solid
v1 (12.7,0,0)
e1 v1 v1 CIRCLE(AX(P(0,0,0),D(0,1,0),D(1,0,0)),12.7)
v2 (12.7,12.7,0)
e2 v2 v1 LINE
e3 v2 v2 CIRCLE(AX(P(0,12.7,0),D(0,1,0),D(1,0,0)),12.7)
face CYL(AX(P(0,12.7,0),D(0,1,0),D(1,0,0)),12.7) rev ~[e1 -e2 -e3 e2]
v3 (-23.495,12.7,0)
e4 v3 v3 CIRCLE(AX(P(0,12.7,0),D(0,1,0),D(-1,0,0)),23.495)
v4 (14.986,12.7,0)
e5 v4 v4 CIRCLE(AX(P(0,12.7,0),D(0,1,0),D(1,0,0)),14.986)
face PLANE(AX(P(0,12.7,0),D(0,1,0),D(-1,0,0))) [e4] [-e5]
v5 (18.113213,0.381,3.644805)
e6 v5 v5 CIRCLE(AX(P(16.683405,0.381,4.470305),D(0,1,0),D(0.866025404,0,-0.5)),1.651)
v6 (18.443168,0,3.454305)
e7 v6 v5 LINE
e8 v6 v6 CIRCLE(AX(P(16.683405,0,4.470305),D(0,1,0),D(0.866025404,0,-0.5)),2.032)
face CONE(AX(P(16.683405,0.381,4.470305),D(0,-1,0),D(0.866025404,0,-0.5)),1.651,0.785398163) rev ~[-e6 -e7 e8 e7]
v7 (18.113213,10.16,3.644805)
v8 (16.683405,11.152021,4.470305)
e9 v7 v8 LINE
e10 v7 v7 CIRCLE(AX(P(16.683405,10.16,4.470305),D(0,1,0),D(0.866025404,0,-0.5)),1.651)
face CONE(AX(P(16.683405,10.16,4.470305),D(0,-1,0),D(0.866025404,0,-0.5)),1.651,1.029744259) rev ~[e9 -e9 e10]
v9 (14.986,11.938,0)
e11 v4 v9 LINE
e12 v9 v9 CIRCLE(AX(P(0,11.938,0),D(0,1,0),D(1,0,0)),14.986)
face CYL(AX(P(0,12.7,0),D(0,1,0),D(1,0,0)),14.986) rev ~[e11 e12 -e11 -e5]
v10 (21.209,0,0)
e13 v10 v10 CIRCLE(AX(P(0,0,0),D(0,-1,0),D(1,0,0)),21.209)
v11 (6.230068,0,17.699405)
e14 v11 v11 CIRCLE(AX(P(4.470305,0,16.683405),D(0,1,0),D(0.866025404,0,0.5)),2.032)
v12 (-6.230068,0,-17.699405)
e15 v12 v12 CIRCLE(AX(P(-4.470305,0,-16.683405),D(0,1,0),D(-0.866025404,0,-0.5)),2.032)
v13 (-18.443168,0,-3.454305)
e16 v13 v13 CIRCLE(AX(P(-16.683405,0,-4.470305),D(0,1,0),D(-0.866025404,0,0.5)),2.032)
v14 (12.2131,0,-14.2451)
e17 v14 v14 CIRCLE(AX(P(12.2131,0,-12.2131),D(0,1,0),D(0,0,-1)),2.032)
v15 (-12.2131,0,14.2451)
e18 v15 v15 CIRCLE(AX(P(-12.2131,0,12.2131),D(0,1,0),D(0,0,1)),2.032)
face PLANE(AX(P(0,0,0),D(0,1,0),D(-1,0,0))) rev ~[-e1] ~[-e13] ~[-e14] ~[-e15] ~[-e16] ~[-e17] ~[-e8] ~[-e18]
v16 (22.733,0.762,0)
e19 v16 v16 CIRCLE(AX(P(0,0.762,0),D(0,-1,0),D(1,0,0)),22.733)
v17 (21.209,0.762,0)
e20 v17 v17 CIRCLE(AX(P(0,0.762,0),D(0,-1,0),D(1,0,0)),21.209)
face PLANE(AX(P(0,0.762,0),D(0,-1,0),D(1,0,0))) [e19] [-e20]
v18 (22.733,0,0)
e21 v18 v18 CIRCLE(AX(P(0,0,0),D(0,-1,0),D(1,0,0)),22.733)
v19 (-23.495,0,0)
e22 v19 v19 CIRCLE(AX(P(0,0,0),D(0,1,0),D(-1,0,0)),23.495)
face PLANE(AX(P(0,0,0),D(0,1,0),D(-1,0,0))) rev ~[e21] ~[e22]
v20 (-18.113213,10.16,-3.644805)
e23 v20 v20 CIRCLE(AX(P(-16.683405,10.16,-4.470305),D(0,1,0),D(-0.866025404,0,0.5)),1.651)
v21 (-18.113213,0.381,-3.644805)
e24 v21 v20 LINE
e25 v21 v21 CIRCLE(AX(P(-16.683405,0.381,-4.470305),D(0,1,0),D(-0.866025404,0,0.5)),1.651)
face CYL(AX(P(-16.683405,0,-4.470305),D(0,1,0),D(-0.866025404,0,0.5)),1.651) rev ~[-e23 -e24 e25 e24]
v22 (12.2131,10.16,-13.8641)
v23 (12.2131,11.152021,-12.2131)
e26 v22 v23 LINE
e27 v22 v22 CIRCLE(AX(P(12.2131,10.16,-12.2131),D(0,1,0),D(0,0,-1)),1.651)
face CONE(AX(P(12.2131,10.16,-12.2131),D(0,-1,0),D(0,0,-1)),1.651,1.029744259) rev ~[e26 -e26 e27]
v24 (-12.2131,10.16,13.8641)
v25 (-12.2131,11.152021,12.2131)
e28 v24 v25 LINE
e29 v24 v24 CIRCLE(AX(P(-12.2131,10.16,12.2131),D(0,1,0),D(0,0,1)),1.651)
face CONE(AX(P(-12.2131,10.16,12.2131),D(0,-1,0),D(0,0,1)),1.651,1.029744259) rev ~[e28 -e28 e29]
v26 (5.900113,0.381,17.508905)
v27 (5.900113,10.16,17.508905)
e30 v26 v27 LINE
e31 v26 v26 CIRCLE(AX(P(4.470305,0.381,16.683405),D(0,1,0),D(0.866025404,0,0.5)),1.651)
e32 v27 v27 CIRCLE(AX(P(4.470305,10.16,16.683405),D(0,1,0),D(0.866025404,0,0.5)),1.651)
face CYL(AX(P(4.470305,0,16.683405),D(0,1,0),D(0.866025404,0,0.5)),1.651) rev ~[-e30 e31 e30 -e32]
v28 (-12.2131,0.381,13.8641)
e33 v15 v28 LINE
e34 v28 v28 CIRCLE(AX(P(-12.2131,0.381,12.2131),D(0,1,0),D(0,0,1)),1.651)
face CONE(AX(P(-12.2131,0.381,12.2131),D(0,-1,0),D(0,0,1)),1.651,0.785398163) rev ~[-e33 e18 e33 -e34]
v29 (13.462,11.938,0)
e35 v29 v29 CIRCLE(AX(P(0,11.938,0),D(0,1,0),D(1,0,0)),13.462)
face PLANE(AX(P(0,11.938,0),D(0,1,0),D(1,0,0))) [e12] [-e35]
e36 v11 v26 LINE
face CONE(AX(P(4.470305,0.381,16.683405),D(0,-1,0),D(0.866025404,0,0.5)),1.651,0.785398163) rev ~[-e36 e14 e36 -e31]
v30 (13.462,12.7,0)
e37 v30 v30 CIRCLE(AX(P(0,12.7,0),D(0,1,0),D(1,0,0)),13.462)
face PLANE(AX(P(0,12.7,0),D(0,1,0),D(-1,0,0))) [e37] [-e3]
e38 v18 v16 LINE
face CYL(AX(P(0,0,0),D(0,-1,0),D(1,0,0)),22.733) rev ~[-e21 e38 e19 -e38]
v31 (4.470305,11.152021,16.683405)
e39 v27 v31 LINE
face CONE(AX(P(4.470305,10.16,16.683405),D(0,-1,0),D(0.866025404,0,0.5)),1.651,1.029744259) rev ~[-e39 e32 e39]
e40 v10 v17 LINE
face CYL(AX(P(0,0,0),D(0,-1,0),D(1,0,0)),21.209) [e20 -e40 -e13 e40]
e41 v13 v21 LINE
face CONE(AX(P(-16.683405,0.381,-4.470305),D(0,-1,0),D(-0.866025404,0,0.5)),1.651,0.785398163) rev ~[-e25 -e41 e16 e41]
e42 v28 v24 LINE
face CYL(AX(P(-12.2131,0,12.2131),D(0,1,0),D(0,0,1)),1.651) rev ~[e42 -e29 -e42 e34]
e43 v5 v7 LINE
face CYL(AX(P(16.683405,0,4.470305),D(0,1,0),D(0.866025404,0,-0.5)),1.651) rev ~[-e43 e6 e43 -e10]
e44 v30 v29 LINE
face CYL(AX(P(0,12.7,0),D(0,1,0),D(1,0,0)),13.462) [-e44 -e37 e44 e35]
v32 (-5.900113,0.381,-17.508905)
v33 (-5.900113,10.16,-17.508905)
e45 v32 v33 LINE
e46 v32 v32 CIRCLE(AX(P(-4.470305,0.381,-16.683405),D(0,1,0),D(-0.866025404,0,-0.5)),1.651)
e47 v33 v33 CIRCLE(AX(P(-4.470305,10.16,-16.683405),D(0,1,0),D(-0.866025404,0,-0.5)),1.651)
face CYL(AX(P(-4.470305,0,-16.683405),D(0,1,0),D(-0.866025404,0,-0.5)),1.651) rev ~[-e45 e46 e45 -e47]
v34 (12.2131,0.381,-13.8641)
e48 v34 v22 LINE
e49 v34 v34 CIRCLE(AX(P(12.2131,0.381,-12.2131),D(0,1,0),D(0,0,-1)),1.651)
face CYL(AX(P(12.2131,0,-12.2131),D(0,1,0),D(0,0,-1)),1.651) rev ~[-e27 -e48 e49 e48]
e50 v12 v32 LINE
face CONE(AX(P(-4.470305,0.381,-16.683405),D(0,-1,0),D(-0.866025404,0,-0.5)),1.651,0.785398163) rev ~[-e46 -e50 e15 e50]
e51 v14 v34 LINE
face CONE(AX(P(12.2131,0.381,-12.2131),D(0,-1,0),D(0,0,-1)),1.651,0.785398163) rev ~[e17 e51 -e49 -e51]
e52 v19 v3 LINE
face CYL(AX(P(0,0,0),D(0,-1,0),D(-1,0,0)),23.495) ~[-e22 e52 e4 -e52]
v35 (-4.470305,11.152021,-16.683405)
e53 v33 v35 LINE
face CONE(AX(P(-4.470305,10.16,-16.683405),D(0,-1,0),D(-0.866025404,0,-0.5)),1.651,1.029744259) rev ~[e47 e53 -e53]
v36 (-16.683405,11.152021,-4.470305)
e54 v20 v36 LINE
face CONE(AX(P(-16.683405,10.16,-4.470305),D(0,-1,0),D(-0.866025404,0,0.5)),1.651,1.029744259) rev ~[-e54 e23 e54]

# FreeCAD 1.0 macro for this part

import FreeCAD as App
import Part
import Sketcher
Q = App.Units.Quantity


def edges_at(feature, points):
    """Names of the edges that pass closest to the given points."""
    edges = feature.Shape.Edges
    near = lambda p: min(range(len(edges)), key=lambda i: edges[i].distToShape(Part.Vertex(*p))[0])
    return sorted({f"Edge{near(p) + 1}" for p in points})

doc = App.newDocument("Part")
body = doc.addObject("PartDesign::Body", "Body")

sketch1 = body.newObject("Sketcher::SketchObject", "Sketch")
sketch1.AttachmentSupport = (doc.getObject("XZ_Plane"), [""])
sketch1.MapMode = "FlatFace"
sketch1.addGeometry(Part.Circle(App.Vector(0, 0, 0), App.Vector(0, 0, 1), 23), False)
sketch1.addConstraint(Sketcher.Constraint("Coincident", 0, 3, -1, 1))
sketch1.addConstraint(Sketcher.Constraint("Diameter", 0, Q("1.85 in")))
pad1 = body.newObject("PartDesign::Pad", "Pad")
pad1.Profile = sketch1
pad1.Length = Q("0.5 in")
pad1.Reversed = True

sketch2 = body.newObject("Sketcher::SketchObject", "Sketch001")
sketch2.AttachmentSupport = (doc.getObject("XZ_Plane"), [""])
sketch2.MapMode = "FlatFace"
sketch2.addGeometry(Part.Circle(App.Vector(0, 0, 0), App.Vector(0, 0, 1), 23), False)
sketch2.addGeometry(Part.Circle(App.Vector(0, 0, 0), App.Vector(0, 0, 1), 21), False)
sketch2.addConstraint(Sketcher.Constraint("Coincident", 0, 3, -1, 1))
sketch2.addConstraint(Sketcher.Constraint("Coincident", 1, 3, -1, 1))
sketch2.addConstraint(Sketcher.Constraint("Diameter", 0, Q("1.79 in")))
sketch2.addConstraint(Sketcher.Constraint("Diameter", 1, Q("1.67 in")))
pocket1 = body.newObject("PartDesign::Pocket", "Pocket")
pocket1.Profile = sketch2
pocket1.Length = Q("0.03 in")

sketch3 = body.newObject("Sketcher::SketchObject", "Sketch002")
sketch3.AttachmentSupport = (doc.getObject("XZ_Plane"), [""])
sketch3.MapMode = "FlatFace"
sketch3.AttachmentOffset = App.Placement(App.Vector(0, 0, -0.5 * 25.4), App.Rotation())
sketch3.addGeometry(Part.Circle(App.Vector(0, 0, 0), App.Vector(0, 0, 1), 13), False)
sketch3.addConstraint(Sketcher.Constraint("Coincident", 0, 3, -1, 1))
sketch3.addConstraint(Sketcher.Constraint("Diameter", 0, Q("1 in")))
pocket2 = body.newObject("PartDesign::Pocket", "Pocket001")
pocket2.Profile = sketch3
pocket2.Length = Q("0.5 in")
pocket2.Reversed = True

sketch4 = body.newObject("Sketcher::SketchObject", "Sketch003")
sketch4.AttachmentSupport = (doc.getObject("XZ_Plane"), [""])
sketch4.MapMode = "FlatFace"
sketch4.AttachmentOffset = App.Placement(App.Vector(0, 0, -0.5 * 25.4), App.Rotation())
sketch4.addGeometry(Part.Circle(App.Vector(0, 0, 0), App.Vector(0, 0, 1), 15), False)
sketch4.addGeometry(Part.Circle(App.Vector(0, 0, 0), App.Vector(0, 0, 1), 13), False)
sketch4.addConstraint(Sketcher.Constraint("Coincident", 0, 3, -1, 1))
sketch4.addConstraint(Sketcher.Constraint("Coincident", 1, 3, -1, 1))
sketch4.addConstraint(Sketcher.Constraint("Diameter", 0, Q("1.18 in")))
sketch4.addConstraint(Sketcher.Constraint("Diameter", 1, Q("1.06 in")))
pocket3 = body.newObject("PartDesign::Pocket", "Pocket002")
pocket3.Profile = sketch4
pocket3.Length = Q("0.03 in")
pocket3.Reversed = True

sketch5 = body.newObject("Sketcher::SketchObject", "Sketch004")
sketch5.AttachmentSupport = (doc.getObject("XZ_Plane"), [""])
sketch5.MapMode = "FlatFace"
sketch5.addGeometry(Part.Circle(App.Vector(12.2, -12.2, 0), App.Vector(0, 0, 1), 1.7), False)
sketch5.addConstraint(Sketcher.Constraint("Diameter", 0, Q("0.13 in")))
sketch5.addConstraint(Sketcher.Constraint("DistanceX", -1, 1, 0, 3, 12.213))
sketch5.addConstraint(Sketcher.Constraint("DistanceY", 0, 3, -1, 1, 12.213))
doc.recompute()
hole = body.newObject("PartDesign::Hole", "Hole")
hole.Profile = sketch5
hole.ThreadType = "None"
hole.Diameter = Q("0.13 in")
hole.DepthType = "Dimension"
hole.Depth = Q("0.4 in")
hole.DrillPoint = "Angled"
hole.DrillPointAngle = 118
doc.recompute()

chamfer = body.newObject("PartDesign::Chamfer", "Chamfer")
chamfer.Base = (hole, edges_at(hole, [(12.213, 0, -10.562)]))
chamfer.Size = Q("0.015 in")
doc.recompute()

polarpattern = body.newObject("PartDesign::PolarPattern", "PolarPattern")
polarpattern.Originals = [hole, chamfer]
polarpattern.Axis = (doc.getObject("Y_Axis"), [""])
polarpattern.Angle = 360
polarpattern.Occurrences = 6
body.Tip = polarpattern

doc.recompute()
